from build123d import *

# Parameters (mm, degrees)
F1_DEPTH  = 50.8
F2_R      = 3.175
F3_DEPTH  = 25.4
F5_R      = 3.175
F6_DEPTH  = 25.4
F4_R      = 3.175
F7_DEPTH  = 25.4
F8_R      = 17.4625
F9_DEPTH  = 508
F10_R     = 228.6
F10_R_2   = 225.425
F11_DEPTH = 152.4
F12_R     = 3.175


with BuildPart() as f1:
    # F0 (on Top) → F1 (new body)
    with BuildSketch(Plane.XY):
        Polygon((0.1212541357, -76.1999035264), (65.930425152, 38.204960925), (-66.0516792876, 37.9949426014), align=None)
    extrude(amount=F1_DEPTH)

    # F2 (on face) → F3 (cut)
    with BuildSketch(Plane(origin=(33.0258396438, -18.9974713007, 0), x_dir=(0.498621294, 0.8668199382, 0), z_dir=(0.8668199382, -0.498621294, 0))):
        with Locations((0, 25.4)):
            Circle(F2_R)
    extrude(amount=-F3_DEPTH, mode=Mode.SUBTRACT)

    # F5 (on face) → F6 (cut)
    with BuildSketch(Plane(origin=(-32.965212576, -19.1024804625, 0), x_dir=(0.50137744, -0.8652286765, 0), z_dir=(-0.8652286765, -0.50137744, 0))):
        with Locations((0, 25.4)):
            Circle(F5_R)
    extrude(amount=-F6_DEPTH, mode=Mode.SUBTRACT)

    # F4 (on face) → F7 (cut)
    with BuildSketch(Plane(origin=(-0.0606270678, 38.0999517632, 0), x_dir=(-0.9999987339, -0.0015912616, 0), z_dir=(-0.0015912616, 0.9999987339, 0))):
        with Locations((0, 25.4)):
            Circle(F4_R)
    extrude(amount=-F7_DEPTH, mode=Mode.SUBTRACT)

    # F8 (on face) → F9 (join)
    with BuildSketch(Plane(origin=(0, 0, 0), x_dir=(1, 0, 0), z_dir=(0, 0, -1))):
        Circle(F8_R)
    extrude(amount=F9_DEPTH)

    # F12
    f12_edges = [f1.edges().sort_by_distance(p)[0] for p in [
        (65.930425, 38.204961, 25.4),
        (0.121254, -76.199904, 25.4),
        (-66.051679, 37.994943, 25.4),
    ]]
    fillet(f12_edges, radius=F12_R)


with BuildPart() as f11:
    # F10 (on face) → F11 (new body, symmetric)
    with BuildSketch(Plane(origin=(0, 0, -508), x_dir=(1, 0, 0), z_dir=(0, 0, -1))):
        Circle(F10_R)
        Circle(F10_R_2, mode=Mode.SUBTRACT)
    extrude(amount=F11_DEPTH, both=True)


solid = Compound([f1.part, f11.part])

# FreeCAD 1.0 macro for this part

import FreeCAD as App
import Part
import Sketcher
Q = App.Units.Quantity


def edges_at(feature, points):
    """Names of the edges that pass closest to the given points."""
    edges = feature.Shape.Edges
    near = lambda p: min(range(len(edges)), key=lambda i: edges[i].distToShape(Part.Vertex(*p))[0])
    return sorted({f"Edge{near(p) + 1}" for p in points})


def add_polygon(sketch, points):
    """Adds a closed chain of lines whose ends are joined by coincident constraints."""
    first, n = sketch.GeometryCount, len(points)
    for a, b in zip(points, points[1:] + points[:1]):
        sketch.addGeometry(Part.LineSegment(App.Vector(*a, 0), App.Vector(*b, 0)), False)
    for i in range(n):
        sketch.addConstraint(Sketcher.Constraint("Coincident", first + i, 2, first + (i + 1) % n, 1))

doc = App.newDocument("Part")
body = doc.addObject("PartDesign::Body", "Body")

sketch1 = body.newObject("Sketcher::SketchObject", "Sketch")
sketch1.AttachmentSupport = (doc.getObject("XY_Plane"), [""])
sketch1.MapMode = "FlatFace"
add_polygon(sketch1, [(0, -76), (66, 38), (-66, 38)])
sketch1.addConstraint([
    Sketcher.Constraint("Equal", 0, 1),
    Sketcher.Constraint("Equal", 1, 2),
    Sketcher.Constraint("Distance", 0, Q("131.982272 mm")),
    Sketcher.Constraint("DistanceY", -1, 1, 0, 2, Q("38.204961 mm")),
    Sketcher.Constraint("DistanceX", 1, 2, -1, 1, Q("66.051679 mm")),
    Sketcher.Constraint("DistanceY", 1, 2, 0, 2, Q("0.210018 mm")),
])
pad1 = body.newObject("PartDesign::Pad", "Pad")
pad1.Profile = sketch1
pad1.Length = Q("2 in")

sketch2 = body.newObject("Sketcher::SketchObject", "Sketch001")
sketch2.Placement = App.Placement(App.Vector(33.02584, -18.997471, 0), App.Rotation(App.Vector(0.498621294, 0.866819938, 0), App.Vector(0, 0, 1), App.Vector(0.866819938, -0.498621294, 0), "ZXY"))
sketch2.addGeometry(Part.Circle(App.Vector(0, 25.4, 0), App.Vector(0, 0, 1), 3.2), False)
sketch2.addConstraint([
    Sketcher.Constraint("PointOnObject", 0, 3, -2),
    Sketcher.Constraint("Diameter", 0, Q("0.25 in")),
    Sketcher.Constraint("DistanceY", -1, 1, 0, 3, Q("1 in")),
])
pocket1 = body.newObject("PartDesign::Pocket", "Pocket")
pocket1.Profile = sketch2
pocket1.Length = Q("1 in")

sketch3 = body.newObject("Sketcher::SketchObject", "Sketch002")
sketch3.Placement = App.Placement(App.Vector(-32.965213, -19.10248, 0), App.Rotation(App.Vector(0.50137744, -0.865228677, 0), App.Vector(0, 0, 1.000000001), App.Vector(-0.865228677, -0.50137744, 0), "ZXY"))
sketch3.addGeometry(Part.Circle(App.Vector(0, 25.4, 0), App.Vector(0, 0, 1), 3.2), False)
sketch3.addConstraint([
    Sketcher.Constraint("PointOnObject", 0, 3, -2),
    Sketcher.Constraint("Diameter", 0, Q("0.25 in")),
    Sketcher.Constraint("DistanceY", -1, 1, 0, 3, Q("1 in")),
])
pocket2 = body.newObject("PartDesign::Pocket", "Pocket001")
pocket2.Profile = sketch3
pocket2.Length = Q("1 in")

sketch4 = body.newObject("Sketcher::SketchObject", "Sketch003")
sketch4.Placement = App.Placement(App.Vector(-0.060627, 38.099952, 0), App.Rotation(App.Vector(-0.999998734, -0.001591262, 0), App.Vector(0, 0, 1), App.Vector(-0.001591262, 0.999998734, 0), "ZXY"))
sketch4.addGeometry(Part.Circle(App.Vector(0, 25.4, 0), App.Vector(0, 0, 1), 3.2), False)
sketch4.addConstraint([
    Sketcher.Constraint("PointOnObject", 0, 3, -2),
    Sketcher.Constraint("Diameter", 0, Q("0.25 in")),
    Sketcher.Constraint("DistanceY", -1, 1, 0, 3, Q("1 in")),
])
pocket3 = body.newObject("PartDesign::Pocket", "Pocket002")
pocket3.Profile = sketch4
pocket3.Length = Q("1 in")

sketch5 = body.newObject("Sketcher::SketchObject", "Sketch004")
sketch5.AttachmentSupport = (doc.getObject("XY_Plane"), [""])
sketch5.MapMode = "FlatFace"
sketch5.addGeometry(Part.Circle(App.Vector(0, 0, 0), App.Vector(0, 0, 1), 17), False)
sketch5.addConstraint([
    Sketcher.Constraint("Coincident", 0, 3, -1, 1),
    Sketcher.Constraint("Diameter", 0, Q("1.375 in")),
])
pad2 = body.newObject("PartDesign::Pad", "Pad001")
pad2.Profile = sketch5
pad2.Length = Q("20 in")
pad2.Reversed = True
doc.recompute()

fillet = body.newObject("PartDesign::Fillet", "Fillet")
fillet.Base = (pad2, edges_at(pad2, [(65.93, 38.205, 25.4), (0.121, -76.2, 25.4), (-66.052, 37.995, 25.4)]))
fillet.Radius = Q("0.125 in")
body2 = doc.addObject("PartDesign::Body", "Body001")

sketch6 = body2.newObject("Sketcher::SketchObject", "Sketch005")
sketch6.AttachmentSupport = (doc.getObject("XY_Plane001"), [""])
sketch6.MapMode = "FlatFace"
sketch6.AttachmentOffset = App.Placement(App.Vector(0, 0, -20 * 25.4), App.Rotation())
sketch6.addGeometry([
    Part.Circle(App.Vector(0, 0, 0), App.Vector(0, 0, 1), 229),
    Part.Circle(App.Vector(0, 0, 0), App.Vector(0, 0, 1), 225),
], False)
sketch6.addConstraint([
    Sketcher.Constraint("Coincident", 0, 3, -1, 1),
    Sketcher.Constraint("Coincident", 1, 3, -1, 1),
    Sketcher.Constraint("Diameter", 0, Q("18 in")),
    Sketcher.Constraint("Diameter", 1, Q("17.75 in")),
])
pad3 = body2.newObject("PartDesign::Pad", "Pad002")
pad3.Profile = sketch6
pad3.Length = Q("12 in")
pad3.Midplane = True

doc.recompute()
